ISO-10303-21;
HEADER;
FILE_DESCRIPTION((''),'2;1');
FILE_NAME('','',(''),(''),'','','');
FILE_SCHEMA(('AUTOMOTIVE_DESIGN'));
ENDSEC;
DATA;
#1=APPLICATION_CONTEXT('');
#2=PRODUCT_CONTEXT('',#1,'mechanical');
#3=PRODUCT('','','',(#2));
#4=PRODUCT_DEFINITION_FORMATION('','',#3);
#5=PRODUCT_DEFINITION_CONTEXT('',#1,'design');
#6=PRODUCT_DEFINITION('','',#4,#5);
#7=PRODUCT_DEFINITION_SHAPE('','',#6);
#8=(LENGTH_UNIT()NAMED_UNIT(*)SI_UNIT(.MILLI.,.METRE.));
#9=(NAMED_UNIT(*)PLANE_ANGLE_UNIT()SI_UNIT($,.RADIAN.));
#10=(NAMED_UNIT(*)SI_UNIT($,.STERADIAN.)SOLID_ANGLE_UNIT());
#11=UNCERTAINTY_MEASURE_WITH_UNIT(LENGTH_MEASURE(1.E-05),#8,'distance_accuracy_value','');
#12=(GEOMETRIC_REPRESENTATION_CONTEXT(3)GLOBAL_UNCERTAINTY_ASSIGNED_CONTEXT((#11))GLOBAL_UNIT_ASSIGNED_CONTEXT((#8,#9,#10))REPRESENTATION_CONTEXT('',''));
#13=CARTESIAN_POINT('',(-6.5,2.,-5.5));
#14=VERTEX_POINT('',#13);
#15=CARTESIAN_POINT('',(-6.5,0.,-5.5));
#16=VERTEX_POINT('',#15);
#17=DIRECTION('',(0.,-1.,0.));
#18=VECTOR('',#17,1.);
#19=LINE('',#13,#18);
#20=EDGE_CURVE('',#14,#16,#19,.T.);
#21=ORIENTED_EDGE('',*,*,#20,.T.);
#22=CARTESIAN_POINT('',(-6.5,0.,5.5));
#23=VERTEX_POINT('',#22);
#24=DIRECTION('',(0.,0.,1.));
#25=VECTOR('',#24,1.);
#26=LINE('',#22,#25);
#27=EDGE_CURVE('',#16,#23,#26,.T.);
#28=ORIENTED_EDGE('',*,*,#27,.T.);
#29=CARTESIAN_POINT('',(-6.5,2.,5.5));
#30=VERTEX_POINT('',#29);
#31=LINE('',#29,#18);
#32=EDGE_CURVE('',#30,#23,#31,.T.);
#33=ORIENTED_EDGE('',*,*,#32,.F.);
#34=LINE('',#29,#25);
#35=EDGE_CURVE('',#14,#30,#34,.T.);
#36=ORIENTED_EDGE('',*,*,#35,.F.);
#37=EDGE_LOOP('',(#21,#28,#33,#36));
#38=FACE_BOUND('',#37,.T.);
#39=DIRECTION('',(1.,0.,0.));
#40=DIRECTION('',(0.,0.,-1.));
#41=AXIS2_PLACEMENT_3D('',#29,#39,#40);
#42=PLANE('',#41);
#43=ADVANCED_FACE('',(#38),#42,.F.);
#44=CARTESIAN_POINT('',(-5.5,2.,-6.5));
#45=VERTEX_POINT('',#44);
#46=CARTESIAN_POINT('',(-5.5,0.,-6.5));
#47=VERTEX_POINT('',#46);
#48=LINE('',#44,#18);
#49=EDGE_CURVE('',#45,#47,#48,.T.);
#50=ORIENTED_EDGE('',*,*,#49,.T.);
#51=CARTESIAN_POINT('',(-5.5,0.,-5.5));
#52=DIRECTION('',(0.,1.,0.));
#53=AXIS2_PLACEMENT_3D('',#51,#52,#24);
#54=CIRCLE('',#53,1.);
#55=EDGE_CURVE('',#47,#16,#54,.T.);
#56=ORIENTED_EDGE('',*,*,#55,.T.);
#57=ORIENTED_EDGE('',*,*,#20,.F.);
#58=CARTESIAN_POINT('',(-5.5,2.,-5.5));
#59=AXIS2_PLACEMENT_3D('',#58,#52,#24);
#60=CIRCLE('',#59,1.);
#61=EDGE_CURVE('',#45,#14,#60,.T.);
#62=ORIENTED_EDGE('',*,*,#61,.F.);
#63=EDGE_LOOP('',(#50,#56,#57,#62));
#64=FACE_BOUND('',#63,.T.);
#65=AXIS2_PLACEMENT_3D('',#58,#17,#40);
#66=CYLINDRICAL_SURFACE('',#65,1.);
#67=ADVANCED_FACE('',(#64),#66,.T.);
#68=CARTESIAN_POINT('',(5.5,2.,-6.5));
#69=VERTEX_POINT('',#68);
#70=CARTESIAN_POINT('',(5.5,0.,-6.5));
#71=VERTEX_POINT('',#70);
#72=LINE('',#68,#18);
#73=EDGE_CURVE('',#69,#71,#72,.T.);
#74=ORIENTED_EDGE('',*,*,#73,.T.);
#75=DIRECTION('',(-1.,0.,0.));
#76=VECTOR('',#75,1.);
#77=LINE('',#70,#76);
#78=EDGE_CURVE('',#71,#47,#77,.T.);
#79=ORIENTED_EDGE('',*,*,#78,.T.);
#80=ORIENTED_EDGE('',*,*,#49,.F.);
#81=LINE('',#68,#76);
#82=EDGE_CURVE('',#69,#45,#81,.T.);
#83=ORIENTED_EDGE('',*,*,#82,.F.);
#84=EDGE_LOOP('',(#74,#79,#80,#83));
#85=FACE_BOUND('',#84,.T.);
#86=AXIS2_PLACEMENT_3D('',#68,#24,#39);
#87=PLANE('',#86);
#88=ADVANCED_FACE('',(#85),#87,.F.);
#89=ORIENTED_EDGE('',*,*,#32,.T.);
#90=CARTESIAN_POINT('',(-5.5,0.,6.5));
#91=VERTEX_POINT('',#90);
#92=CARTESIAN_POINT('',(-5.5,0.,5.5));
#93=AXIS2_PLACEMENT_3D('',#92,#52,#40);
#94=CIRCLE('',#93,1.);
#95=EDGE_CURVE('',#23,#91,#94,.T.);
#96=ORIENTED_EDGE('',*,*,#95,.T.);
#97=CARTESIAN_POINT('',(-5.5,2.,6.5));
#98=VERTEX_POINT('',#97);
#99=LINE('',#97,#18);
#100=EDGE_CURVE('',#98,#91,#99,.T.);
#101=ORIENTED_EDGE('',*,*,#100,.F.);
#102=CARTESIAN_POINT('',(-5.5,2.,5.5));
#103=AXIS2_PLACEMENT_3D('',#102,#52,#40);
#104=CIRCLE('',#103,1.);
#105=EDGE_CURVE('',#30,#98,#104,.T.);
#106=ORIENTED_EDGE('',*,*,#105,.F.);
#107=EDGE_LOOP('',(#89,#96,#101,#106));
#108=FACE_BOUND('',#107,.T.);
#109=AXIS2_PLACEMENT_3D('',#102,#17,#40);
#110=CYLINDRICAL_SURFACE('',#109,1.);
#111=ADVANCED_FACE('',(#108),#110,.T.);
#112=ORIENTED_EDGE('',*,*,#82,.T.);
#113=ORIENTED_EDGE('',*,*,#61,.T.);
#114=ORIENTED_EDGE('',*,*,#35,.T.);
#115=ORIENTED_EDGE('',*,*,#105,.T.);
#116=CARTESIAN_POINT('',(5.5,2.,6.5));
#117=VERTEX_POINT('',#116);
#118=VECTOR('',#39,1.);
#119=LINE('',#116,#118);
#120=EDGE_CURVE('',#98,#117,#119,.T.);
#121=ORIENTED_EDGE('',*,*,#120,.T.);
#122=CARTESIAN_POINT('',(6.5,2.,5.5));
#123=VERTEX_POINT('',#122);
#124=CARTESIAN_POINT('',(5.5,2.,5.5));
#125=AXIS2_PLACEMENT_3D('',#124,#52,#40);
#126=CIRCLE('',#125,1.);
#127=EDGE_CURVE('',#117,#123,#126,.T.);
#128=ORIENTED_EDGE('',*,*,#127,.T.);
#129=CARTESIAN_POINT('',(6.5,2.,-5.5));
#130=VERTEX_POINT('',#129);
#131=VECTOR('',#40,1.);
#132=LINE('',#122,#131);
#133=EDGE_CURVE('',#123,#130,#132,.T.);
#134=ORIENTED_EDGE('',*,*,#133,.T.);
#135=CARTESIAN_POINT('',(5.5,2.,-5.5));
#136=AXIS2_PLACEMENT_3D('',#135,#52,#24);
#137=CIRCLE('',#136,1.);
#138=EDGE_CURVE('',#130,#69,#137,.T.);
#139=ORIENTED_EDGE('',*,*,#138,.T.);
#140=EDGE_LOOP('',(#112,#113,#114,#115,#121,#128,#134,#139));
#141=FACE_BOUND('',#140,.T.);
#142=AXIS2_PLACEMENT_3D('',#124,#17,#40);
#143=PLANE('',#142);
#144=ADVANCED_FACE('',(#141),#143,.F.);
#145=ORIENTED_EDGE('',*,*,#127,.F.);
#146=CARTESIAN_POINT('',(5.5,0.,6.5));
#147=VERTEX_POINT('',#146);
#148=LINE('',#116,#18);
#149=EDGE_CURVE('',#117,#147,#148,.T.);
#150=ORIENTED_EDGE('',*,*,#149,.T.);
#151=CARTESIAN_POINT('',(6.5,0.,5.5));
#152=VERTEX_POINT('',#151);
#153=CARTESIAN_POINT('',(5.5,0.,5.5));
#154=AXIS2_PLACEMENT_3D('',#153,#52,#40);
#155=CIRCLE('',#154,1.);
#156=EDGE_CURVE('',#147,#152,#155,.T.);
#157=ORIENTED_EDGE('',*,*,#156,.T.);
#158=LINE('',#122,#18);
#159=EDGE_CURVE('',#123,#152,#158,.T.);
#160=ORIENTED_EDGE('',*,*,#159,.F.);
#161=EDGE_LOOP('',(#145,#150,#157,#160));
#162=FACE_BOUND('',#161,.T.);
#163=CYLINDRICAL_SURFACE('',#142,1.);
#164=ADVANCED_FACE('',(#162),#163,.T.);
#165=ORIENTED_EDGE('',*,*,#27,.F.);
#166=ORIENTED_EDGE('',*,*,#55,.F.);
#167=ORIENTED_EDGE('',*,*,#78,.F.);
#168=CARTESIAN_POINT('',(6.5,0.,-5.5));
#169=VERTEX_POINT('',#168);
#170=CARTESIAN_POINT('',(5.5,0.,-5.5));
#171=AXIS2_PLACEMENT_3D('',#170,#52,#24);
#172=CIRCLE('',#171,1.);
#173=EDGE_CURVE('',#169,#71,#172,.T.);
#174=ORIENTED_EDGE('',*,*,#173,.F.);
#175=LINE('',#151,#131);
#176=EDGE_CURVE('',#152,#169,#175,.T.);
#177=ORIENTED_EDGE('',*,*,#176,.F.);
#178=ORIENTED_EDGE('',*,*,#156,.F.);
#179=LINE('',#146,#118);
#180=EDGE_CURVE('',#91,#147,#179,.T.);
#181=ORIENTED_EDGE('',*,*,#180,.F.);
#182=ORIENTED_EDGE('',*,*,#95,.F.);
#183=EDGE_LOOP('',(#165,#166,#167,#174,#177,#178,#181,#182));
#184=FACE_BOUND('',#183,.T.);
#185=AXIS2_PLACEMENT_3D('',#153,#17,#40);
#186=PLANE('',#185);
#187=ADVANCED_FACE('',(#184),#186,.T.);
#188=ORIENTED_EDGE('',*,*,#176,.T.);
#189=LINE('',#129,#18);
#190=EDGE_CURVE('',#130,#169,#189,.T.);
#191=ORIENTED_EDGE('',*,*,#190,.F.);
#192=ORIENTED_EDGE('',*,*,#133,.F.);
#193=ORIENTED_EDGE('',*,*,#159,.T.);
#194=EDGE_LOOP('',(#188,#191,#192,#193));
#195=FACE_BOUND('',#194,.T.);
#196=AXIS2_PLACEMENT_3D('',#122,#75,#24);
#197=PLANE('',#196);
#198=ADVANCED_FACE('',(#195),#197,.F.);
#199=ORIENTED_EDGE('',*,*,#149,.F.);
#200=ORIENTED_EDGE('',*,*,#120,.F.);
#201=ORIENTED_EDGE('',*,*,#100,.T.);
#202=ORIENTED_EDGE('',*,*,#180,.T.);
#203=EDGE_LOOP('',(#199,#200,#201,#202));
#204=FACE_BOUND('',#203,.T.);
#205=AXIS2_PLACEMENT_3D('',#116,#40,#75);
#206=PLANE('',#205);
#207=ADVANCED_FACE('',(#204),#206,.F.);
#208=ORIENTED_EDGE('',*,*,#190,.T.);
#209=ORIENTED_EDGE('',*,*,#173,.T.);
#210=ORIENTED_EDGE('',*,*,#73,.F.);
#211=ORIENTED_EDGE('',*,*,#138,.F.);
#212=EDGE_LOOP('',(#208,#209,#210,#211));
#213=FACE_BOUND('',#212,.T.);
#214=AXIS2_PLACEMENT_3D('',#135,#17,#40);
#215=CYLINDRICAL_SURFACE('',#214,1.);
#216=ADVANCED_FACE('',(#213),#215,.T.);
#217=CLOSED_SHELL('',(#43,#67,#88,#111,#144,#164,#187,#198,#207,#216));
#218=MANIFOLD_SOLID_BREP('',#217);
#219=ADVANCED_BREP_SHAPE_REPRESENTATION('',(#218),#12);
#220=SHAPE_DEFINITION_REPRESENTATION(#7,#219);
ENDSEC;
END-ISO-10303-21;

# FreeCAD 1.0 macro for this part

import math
import FreeCAD as App
import Part
import Sketcher
from FreeCAD import Vector
Q = App.Units.Quantity

doc = App.newDocument("Part")
body = doc.addObject("PartDesign::Body", "Body")

sketch1 = doc.addObject("Sketcher::SketchObject", "Sketch")
body.addObject(sketch1)
sketch1.AttachmentSupport = (doc.XZ_Plane, [""])
sketch1.MapMode = "FlatFace"
sketch1.addGeometry(Part.LineSegment(Vector(-5.5, 6.5, 0), Vector(5.5, 6.5, 0)), False)
sketch1.addGeometry(Part.ArcOfCircle(Part.Circle(Vector(5.5, 5.5, 0), Vector(0, 0, 1), 1), math.radians(0), math.radians(90)), False)
sketch1.addGeometry(Part.LineSegment(Vector(6.5, 5.5, 0), Vector(6.5, -5.5, 0)), False)
sketch1.addGeometry(Part.ArcOfCircle(Part.Circle(Vector(5.5, -5.5, 0), Vector(0, 0, 1), 1), math.radians(-90), math.radians(0)), False)
sketch1.addGeometry(Part.LineSegment(Vector(5.5, -6.5, 0), Vector(-5.5, -6.5, 0)), False)
sketch1.addGeometry(Part.ArcOfCircle(Part.Circle(Vector(-5.5, -5.5, 0), Vector(0, 0, 1), 1), math.radians(-180), math.radians(-90)), False)
sketch1.addGeometry(Part.LineSegment(Vector(-6.5, -5.5, 0), Vector(-6.5, 5.5, 0)), False)
sketch1.addGeometry(Part.ArcOfCircle(Part.Circle(Vector(-5.5, 5.5, 0), Vector(0, 0, 1), 1), math.radians(90), math.radians(180)), False)
sketch1.addConstraint(Sketcher.Constraint("Tangent", 0, 2, 1, 2))
sketch1.addConstraint(Sketcher.Constraint("Tangent", 1, 1, 2, 1))
sketch1.addConstraint(Sketcher.Constraint("Tangent", 2, 2, 3, 2))
sketch1.addConstraint(Sketcher.Constraint("Tangent", 3, 1, 4, 1))
sketch1.addConstraint(Sketcher.Constraint("Tangent", 4, 2, 5, 2))
sketch1.addConstraint(Sketcher.Constraint("Tangent", 5, 1, 6, 1))
sketch1.addConstraint(Sketcher.Constraint("Tangent", 6, 2, 7, 2))
sketch1.addConstraint(Sketcher.Constraint("Tangent", 7, 1, 0, 1))
sketch1.addConstraint(Sketcher.Constraint("Horizontal", 0))
sketch1.addConstraint(Sketcher.Constraint("Vertical", 2))
sketch1.addConstraint(Sketcher.Constraint("Horizontal", 4))
sketch1.addConstraint(Sketcher.Constraint("Vertical", 6))
sketch1.addConstraint(Sketcher.Constraint("Equal", 1, 3))
sketch1.addConstraint(Sketcher.Constraint("Equal", 3, 5))
sketch1.addConstraint(Sketcher.Constraint("Equal", 5, 7))
sketch1.addConstraint(Sketcher.Constraint("Symmetric", 1, 3, 5, 3, -1, 1))
sketch1.addConstraint(Sketcher.Constraint("Equal", 4, 2))
sketch1.addConstraint(Sketcher.Constraint("Radius", 1, Q("1 mm")))
sketch1.addConstraint(Sketcher.Constraint("DistanceX", 0, 1, 0, 2, Q("11 mm")))
pad1 = doc.addObject("PartDesign::Pad", "Pad")
body.addObject(pad1)
pad1.Profile = sketch1
pad1.Length = 2
pad1.Reversed = True

doc.recompute()
